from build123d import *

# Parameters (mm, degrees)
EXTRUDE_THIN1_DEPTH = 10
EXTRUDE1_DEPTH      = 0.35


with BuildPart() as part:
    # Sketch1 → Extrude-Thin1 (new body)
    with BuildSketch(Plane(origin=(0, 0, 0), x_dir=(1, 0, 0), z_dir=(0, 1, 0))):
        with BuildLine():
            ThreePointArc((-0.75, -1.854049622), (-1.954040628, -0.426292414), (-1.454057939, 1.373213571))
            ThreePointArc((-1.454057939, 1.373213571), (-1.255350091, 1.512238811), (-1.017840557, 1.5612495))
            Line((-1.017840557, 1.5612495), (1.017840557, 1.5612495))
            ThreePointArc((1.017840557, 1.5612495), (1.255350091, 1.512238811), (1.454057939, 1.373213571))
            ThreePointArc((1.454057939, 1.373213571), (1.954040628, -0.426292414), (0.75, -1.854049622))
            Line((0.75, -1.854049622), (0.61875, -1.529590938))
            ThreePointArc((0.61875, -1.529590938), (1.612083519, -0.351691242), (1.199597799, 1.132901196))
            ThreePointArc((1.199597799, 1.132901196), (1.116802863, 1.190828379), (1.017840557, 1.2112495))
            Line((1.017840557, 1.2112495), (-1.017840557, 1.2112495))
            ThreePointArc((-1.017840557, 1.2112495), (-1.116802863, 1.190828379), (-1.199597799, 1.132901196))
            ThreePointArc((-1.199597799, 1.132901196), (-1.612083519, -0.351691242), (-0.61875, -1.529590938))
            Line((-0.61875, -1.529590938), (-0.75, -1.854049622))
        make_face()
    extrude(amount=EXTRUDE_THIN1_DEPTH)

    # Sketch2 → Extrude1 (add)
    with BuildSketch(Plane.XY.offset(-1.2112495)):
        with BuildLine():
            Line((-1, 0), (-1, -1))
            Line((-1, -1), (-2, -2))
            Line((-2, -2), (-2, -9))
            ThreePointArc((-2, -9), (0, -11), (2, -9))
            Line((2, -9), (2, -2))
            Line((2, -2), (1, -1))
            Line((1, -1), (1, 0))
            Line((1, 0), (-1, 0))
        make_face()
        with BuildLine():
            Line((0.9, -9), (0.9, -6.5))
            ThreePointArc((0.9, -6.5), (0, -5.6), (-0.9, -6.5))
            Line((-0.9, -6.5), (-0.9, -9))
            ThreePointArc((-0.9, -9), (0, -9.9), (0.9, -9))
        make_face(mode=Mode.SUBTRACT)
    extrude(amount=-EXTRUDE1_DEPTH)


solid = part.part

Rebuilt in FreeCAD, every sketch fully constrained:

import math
import FreeCAD as App
import Part
import Sketcher
Q = App.Units.Quantity

doc = App.newDocument("Part")
body = doc.addObject("PartDesign::Body", "Body")

sketch1 = body.newObject("Sketcher::SketchObject", "Sketch")
sketch1.AttachmentSupport = (doc.getObject("XZ_Plane"), [""])
sketch1.MapMode = "FlatFace"
sketch1.addGeometry(Part.ArcOfCircle(Part.Circle(App.Vector(0, 0, 0), App.Vector(0, 0, 1), 2), math.radians(112.024313), math.radians(223.362103)), False)
sketch1.addGeometry(Part.LineSegment(App.Vector(-0.75, 1.85405, 0), App.Vector(-0.61875, 1.529591, 0)), False)
sketch1.addGeometry(Part.ArcOfCircle(Part.Circle(App.Vector(0, 0, 0), App.Vector(0, 0, 1), 1.65), math.radians(112.024313), math.radians(223.362103)), False)
sketch1.addGeometry(Part.ArcOfCircle(Part.Circle(App.Vector(-1.017841, -0.961249, 0), App.Vector(0, 0, 1), 0.25), math.radians(-136.637897), math.radians(-90)), False)
sketch1.addGeometry(Part.LineSegment(App.Vector(-1.017841, -1.21125, 0), App.Vector(1.017841, -1.21125, 0)), False)
sketch1.addGeometry(Part.ArcOfCircle(Part.Circle(App.Vector(1.017841, -0.961249, 0), App.Vector(0, 0, 1), 0.25), math.radians(-90), math.radians(-43.362103)), False)
sketch1.addGeometry(Part.ArcOfCircle(Part.Circle(App.Vector(0, 0, 0), App.Vector(0, 0, 1), 1.65), math.radians(-43.362103), math.radians(67.975687)), False)
sketch1.addGeometry(Part.LineSegment(App.Vector(0.61875, 1.529591, 0), App.Vector(0.75, 1.85405, 0)), False)
sketch1.addGeometry(Part.ArcOfCircle(Part.Circle(App.Vector(0, 0, 0), App.Vector(0, 0, 1), 2), math.radians(-43.362103), math.radians(67.975687)), False)
sketch1.addGeometry(Part.ArcOfCircle(Part.Circle(App.Vector(1.017841, -0.961249, 0), App.Vector(0, 0, 1), 0.6), math.radians(-90), math.radians(-43.362103)), False)
sketch1.addGeometry(Part.LineSegment(App.Vector(1.017841, -1.561249, 0), App.Vector(-1.017841, -1.561249, 0)), False)
sketch1.addGeometry(Part.ArcOfCircle(Part.Circle(App.Vector(-1.017841, -0.961249, 0), App.Vector(0, 0, 1), 0.6), math.radians(-136.637897), math.radians(-90)), False)
sketch1.addConstraint(Sketcher.Constraint("Coincident", 0, 1, 1, 1))
sketch1.addConstraint(Sketcher.Constraint("Coincident", 1, 2, 2, 1))
sketch1.addConstraint(Sketcher.Constraint("Tangent", 2, 2, 3, 1))
sketch1.addConstraint(Sketcher.Constraint("Tangent", 3, 2, 4, 1))
sketch1.addConstraint(Sketcher.Constraint("Tangent", 4, 2, 5, 1))
sketch1.addConstraint(Sketcher.Constraint("Tangent", 5, 2, 6, 1))
sketch1.addConstraint(Sketcher.Constraint("Coincident", 6, 2, 7, 1))
sketch1.addConstraint(Sketcher.Constraint("Coincident", 7, 2, 8, 2))
sketch1.addConstraint(Sketcher.Constraint("Tangent", 8, 1, 9, 2))
sketch1.addConstraint(Sketcher.Constraint("Tangent", 9, 1, 10, 1))
sketch1.addConstraint(Sketcher.Constraint("Tangent", 10, 2, 11, 2))
sketch1.addConstraint(Sketcher.Constraint("Tangent", 11, 1, 0, 2))
sketch1.addConstraint(Sketcher.Constraint("Horizontal", 4))
sketch1.addConstraint(Sketcher.Constraint("Horizontal", 10))
sketch1.addConstraint(Sketcher.Constraint("Coincident", 0, 3, -1, 1))
sketch1.addConstraint(Sketcher.Constraint("Coincident", 2, 3, -1, 1))
sketch1.addConstraint(Sketcher.Constraint("Coincident", 6, 3, -1, 1))
sketch1.addConstraint(Sketcher.Constraint("Coincident", 8, 3, -1, 1))
sketch1.addConstraint(Sketcher.Constraint("Coincident", 9, 3, 5, 3))
sketch1.addConstraint(Sketcher.Constraint("Coincident", 11, 3, 3, 3))
sketch1.addConstraint(Sketcher.Constraint("Equal", 3, 5))
sketch1.addConstraint(Sketcher.Constraint("Equal", 2, 6))
sketch1.addConstraint(Sketcher.Constraint("Horizontal", 1, 2, 6, 2))
sketch1.addConstraint(Sketcher.Constraint("Horizontal", 0, 1, 7, 2))
sketch1.addConstraint(Sketcher.Constraint("Radius", 0, Q("2 mm")))
sketch1.addConstraint(Sketcher.Constraint("Radius", 9, Q("0.6 mm")))
sketch1.addConstraint(Sketcher.Constraint("Radius", 2, Q("1.65 mm")))
sketch1.addConstraint(Sketcher.Constraint("DistanceX", 0, 1, 7, 2, Q("1.5 mm")))
sketch1.addConstraint(Sketcher.Constraint("DistanceX", 4, 1, 4, 2, Q("2.035681 mm")))
sketch1.addConstraint(Sketcher.Constraint("DistanceX", 1, 2, 6, 2, Q("1.2375 mm")))
pad1 = body.newObject("PartDesign::Pad", "Pad")
pad1.Profile = sketch1
pad1.Length = 10
pad1.Reversed = True

sketch2 = body.newObject("Sketcher::SketchObject", "Sketch001")
sketch2.AttachmentSupport = (doc.getObject("XY_Plane"), [""])
sketch2.MapMode = "FlatFace"
sketch2.AttachmentOffset = App.Placement(App.Vector(0, 0, -1.21125), App.Rotation())
sketch2.addGeometry(Part.LineSegment(App.Vector(-1, 0, 0), App.Vector(-1, -1, 0)), False)
sketch2.addGeometry(Part.LineSegment(App.Vector(-1, -1, 0), App.Vector(-2, -2, 0)), False)
sketch2.addGeometry(Part.LineSegment(App.Vector(-2, -2, 0), App.Vector(-2, -9, 0)), False)
sketch2.addGeometry(Part.ArcOfCircle(Part.Circle(App.Vector(0, -9, 0), App.Vector(0, 0, 1), 2), math.radians(180), math.radians(360)), False)
sketch2.addGeometry(Part.LineSegment(App.Vector(2, -9, 0), App.Vector(2, -2, 0)), False)
sketch2.addGeometry(Part.LineSegment(App.Vector(2, -2, 0), App.Vector(1, -1, 0)), False)
sketch2.addGeometry(Part.LineSegment(App.Vector(1, -1, 0), App.Vector(1, 0, 0)), False)
sketch2.addGeometry(Part.LineSegment(App.Vector(1, 0, 0), App.Vector(-1, 0, 0)), False)
sketch2.addGeometry(Part.LineSegment(App.Vector(0.9, -6.5, 0), App.Vector(0.9, -9, 0)), False)
sketch2.addGeometry(Part.ArcOfCircle(Part.Circle(App.Vector(0, -9, 0), App.Vector(0, 0, 1), 0.9), math.radians(180), math.radians(360)), False)
sketch2.addGeometry(Part.LineSegment(App.Vector(-0.9, -9, 0), App.Vector(-0.9, -6.5, 0)), False)
sketch2.addGeometry(Part.ArcOfCircle(Part.Circle(App.Vector(0, -6.5, 0), App.Vector(0, 0, 1), 0.9), math.radians(0), math.radians(180)), False)
sketch2.addConstraint(Sketcher.Constraint("Coincident", 0, 2, 1, 1))
sketch2.addConstraint(Sketcher.Constraint("Coincident", 1, 2, 2, 1))
sketch2.addConstraint(Sketcher.Constraint("Tangent", 2, 2, 3, 1))
sketch2.addConstraint(Sketcher.Constraint("Tangent", 3, 2, 4, 1))
sketch2.addConstraint(Sketcher.Constraint("Coincident", 4, 2, 5, 1))
sketch2.addConstraint(Sketcher.Constraint("Coincident", 5, 2, 6, 1))
sketch2.addConstraint(Sketcher.Constraint("Coincident", 6, 2, 7, 1))
sketch2.addConstraint(Sketcher.Constraint("Coincident", 7, 2, 0, 1))
sketch2.addConstraint(Sketcher.Constraint("Tangent", 8, 2, 9, 2))
sketch2.addConstraint(Sketcher.Constraint("Tangent", 9, 1, 10, 1))
sketch2.addConstraint(Sketcher.Constraint("Tangent", 10, 2, 11, 2))
sketch2.addConstraint(Sketcher.Constraint("Tangent", 11, 1, 8, 1))
sketch2.addConstraint(Sketcher.Constraint("Vertical", 0))
sketch2.addConstraint(Sketcher.Constraint("Vertical", 2))
sketch2.addConstraint(Sketcher.Constraint("Vertical", 4))
sketch2.addConstraint(Sketcher.Constraint("Vertical", 6))
sketch2.addConstraint(Sketcher.Constraint("Horizontal", 7))
sketch2.addConstraint(Sketcher.Constraint("Vertical", 8))
sketch2.addConstraint(Sketcher.Constraint("Vertical", 10))
sketch2.addConstraint(Sketcher.Constraint("Coincident", 9, 3, 3, 3))
sketch2.addConstraint(Sketcher.Constraint("Symmetric", 6, 2, 7, 2, -1, 1))
sketch2.addConstraint(Sketcher.Constraint("Symmetric", 1, 2, 4, 2, -2))
sketch2.addConstraint(Sketcher.Constraint("Perpendicular", 1, 5))
sketch2.addConstraint(Sketcher.Constraint("Horizontal", 0, 2, 5, 2))
sketch2.addConstraint(Sketcher.Constraint("Radius", 3, Q("2 mm")))
sketch2.addConstraint(Sketcher.Constraint("Radius", 9, Q("0.9 mm")))
sketch2.addConstraint(Sketcher.Constraint("DistanceX", 7, 2, 7, 1, Q("2 mm")))
sketch2.addConstraint(Sketcher.Constraint("DistanceY", 0, 2, 0, 1, Q("1 mm")))
sketch2.addConstraint(Sketcher.Constraint("DistanceY", 2, 2, 2, 1, Q("7 mm")))
sketch2.addConstraint(Sketcher.Constraint("DistanceY", 8, 2, 8, 1, Q("2.5 mm")))
pad2 = body.newObject("PartDesign::Pad", "Pad001")
pad2.Profile = sketch2
pad2.Length = 0.35
pad2.Reversed = True

doc.recompute()
